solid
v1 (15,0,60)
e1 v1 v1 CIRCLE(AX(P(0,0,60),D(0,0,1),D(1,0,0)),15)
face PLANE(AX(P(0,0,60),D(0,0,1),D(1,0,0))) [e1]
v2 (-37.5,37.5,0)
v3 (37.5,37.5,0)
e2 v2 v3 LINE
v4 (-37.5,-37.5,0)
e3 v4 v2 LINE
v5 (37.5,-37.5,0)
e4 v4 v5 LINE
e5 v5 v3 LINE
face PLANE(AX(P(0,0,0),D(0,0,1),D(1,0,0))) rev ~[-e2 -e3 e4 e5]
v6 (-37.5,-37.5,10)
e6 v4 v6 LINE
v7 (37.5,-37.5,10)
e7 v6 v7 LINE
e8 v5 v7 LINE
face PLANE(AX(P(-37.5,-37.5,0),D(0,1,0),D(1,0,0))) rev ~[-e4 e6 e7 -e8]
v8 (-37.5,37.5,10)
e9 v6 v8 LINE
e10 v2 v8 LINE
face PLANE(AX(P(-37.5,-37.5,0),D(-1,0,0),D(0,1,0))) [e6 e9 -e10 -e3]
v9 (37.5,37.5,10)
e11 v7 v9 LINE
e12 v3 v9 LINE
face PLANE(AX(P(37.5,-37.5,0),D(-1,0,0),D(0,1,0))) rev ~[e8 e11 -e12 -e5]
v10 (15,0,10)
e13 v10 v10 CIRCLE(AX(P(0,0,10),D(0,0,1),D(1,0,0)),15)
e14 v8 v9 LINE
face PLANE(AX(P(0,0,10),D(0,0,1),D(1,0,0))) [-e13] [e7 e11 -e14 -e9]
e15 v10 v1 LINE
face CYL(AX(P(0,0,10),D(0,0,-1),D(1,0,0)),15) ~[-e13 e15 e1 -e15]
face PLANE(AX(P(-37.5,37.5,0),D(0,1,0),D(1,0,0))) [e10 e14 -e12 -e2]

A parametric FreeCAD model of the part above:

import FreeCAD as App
import Part
import Sketcher
from FreeCAD import Vector
Q = App.Units.Quantity

doc = App.newDocument("Part")
body = doc.addObject("PartDesign::Body", "Body")

# Sketch on XY plane
sketch1 = body.newObject("Sketcher::SketchObject", "Sketch")
sketch1.AttachmentSupport = (doc.getObject("XY_Plane"), [""])
sketch1.MapMode = "FlatFace"
sketch1.addGeometry(Part.LineSegment(Vector(-38, 38, 0), Vector(-38, -38, 0)), False)
sketch1.addGeometry(Part.LineSegment(Vector(-38, -38, 0), Vector(38, -38, 0)), False)
sketch1.addGeometry(Part.LineSegment(Vector(38, -38, 0), Vector(38, 38, 0)), False)
sketch1.addGeometry(Part.LineSegment(Vector(38, 38, 0), Vector(-38, 38, 0)), False)
sketch1.addConstraint(Sketcher.Constraint("Coincident", 0, 2, 1, 1))
sketch1.addConstraint(Sketcher.Constraint("Coincident", 1, 2, 2, 1))
sketch1.addConstraint(Sketcher.Constraint("Coincident", 2, 2, 3, 1))
sketch1.addConstraint(Sketcher.Constraint("Coincident", 3, 2, 0, 1))
sketch1.addConstraint(Sketcher.Constraint("Vertical", 0))
sketch1.addConstraint(Sketcher.Constraint("Horizontal", 1))
sketch1.addConstraint(Sketcher.Constraint("Vertical", 2))
sketch1.addConstraint(Sketcher.Constraint("Horizontal", 3))
sketch1.addConstraint(Sketcher.Constraint("Symmetric", 0, 2, 2, 2, -1, 1))
sketch1.addConstraint(Sketcher.Constraint("Equal", 3, 0))
sketch1.addConstraint(Sketcher.Constraint("DistanceX", 1, 1, 1, 2, Q("75 mm")))
pad1 = body.newObject("PartDesign::Pad", "Pad")
pad1.Profile = sketch1
pad1.Length = 10

# Sketch on XY plane
sketch2 = body.newObject("Sketcher::SketchObject", "Sketch001")
sketch2.AttachmentSupport = (doc.getObject("XY_Plane"), [""])
sketch2.MapMode = "FlatFace"
sketch2.AttachmentOffset = App.Placement(Vector(0, 0, 10), App.Rotation())
sketch2.addGeometry(Part.Circle(Vector(0, 0, 0), Vector(0, 0, 1), 15), False)
sketch2.addConstraint(Sketcher.Constraint("Coincident", 0, 3, -1, 1))
sketch2.addConstraint(Sketcher.Constraint("Diameter", 0, Q("30 mm")))
pad2 = body.newObject("PartDesign::Pad", "Pad001")
pad2.Profile = sketch2
pad2.Length = 50

doc.recompute()
